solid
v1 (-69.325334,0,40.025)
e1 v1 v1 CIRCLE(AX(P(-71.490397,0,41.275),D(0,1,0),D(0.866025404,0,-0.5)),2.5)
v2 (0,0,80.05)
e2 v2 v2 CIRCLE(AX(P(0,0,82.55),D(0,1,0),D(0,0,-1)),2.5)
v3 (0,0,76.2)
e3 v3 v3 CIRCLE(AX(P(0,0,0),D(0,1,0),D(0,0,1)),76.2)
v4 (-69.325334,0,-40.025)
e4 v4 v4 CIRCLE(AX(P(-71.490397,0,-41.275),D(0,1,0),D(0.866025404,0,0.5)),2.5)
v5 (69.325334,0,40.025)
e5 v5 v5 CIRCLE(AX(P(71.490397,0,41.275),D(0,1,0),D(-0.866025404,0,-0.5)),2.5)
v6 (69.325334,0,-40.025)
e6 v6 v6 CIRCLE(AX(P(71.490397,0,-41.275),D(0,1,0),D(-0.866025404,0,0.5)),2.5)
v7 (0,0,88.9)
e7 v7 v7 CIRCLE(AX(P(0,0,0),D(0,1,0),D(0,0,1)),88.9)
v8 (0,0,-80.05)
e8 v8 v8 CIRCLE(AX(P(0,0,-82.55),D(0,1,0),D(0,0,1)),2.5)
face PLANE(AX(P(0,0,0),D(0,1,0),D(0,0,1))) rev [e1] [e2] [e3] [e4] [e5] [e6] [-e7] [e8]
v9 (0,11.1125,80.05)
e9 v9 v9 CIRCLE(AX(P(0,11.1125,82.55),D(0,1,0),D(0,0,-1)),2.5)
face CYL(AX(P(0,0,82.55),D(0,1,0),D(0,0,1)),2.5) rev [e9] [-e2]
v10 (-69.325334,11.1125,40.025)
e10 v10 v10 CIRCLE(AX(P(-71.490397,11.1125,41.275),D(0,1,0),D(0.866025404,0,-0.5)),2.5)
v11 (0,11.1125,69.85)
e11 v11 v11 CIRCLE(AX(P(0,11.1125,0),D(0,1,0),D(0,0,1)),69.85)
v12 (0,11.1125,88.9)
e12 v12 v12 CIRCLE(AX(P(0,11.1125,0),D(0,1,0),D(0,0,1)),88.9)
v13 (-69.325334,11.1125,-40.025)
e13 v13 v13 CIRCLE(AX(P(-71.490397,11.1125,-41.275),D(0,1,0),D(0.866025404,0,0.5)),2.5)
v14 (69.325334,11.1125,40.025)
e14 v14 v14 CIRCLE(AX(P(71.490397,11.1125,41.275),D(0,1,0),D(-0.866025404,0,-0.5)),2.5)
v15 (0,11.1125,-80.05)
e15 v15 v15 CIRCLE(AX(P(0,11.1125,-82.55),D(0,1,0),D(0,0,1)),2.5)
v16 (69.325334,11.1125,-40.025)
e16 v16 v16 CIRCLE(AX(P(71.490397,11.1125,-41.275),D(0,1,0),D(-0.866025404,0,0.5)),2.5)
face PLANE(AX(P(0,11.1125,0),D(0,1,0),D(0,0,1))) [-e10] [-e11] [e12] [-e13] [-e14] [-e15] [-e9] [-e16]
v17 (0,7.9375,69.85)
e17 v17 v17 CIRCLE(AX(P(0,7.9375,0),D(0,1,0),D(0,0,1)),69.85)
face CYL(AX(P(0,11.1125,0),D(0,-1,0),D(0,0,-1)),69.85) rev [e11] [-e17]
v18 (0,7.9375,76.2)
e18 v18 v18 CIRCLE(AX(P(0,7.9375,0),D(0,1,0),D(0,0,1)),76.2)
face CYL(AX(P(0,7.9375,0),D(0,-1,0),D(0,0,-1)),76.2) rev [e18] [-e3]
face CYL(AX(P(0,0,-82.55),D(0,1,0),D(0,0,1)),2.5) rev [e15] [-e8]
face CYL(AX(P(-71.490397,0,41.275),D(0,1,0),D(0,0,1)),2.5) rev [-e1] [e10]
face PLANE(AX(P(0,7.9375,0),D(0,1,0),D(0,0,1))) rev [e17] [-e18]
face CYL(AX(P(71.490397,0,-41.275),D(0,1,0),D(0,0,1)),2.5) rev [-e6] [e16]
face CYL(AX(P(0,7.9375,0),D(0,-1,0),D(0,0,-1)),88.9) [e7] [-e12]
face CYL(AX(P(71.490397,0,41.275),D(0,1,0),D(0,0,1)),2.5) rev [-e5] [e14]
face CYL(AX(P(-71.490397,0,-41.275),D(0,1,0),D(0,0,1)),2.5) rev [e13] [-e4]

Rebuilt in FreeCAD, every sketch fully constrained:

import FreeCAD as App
import Part
import Sketcher
Q = App.Units.Quantity

doc = App.newDocument("Part")
body = doc.addObject("PartDesign::Body", "Body")

# Sketch on XZ plane
sketch1 = doc.addObject("Sketcher::SketchObject", "Sketch")
body.addObject(sketch1)
sketch1.AttachmentSupport = (doc.XZ_Plane, [""])
sketch1.MapMode = "FlatFace"
sketch1.addGeometry(Part.Circle(App.Vector(0, 0, 0), App.Vector(0, 0, 1), 89), False)
sketch1.addGeometry(Part.Circle(App.Vector(0, 0, 0), App.Vector(0, 0, 1), 76), False)
sketch1.addConstraint(Sketcher.Constraint("Coincident", 0, 3, -1, 1))
sketch1.addConstraint(Sketcher.Constraint("Coincident", 1, 3, -1, 1))
sketch1.addConstraint(Sketcher.Constraint("Diameter", 0, Q("7 in")))
sketch1.addConstraint(Sketcher.Constraint("Diameter", 1, Q("6 in")))
pad1 = doc.addObject("PartDesign::Pad", "Pad")
body.addObject(pad1)
pad1.Profile = sketch1
pad1.Length = Q("0.3125 in")
pad1.Reversed = True

# Sketch on XZ plane
sketch2 = doc.addObject("Sketcher::SketchObject", "Sketch001")
body.addObject(sketch2)
sketch2.AttachmentSupport = (doc.XZ_Plane, [""])
sketch2.MapMode = "FlatFace"
sketch2.AttachmentOffset = App.Placement(App.Vector(0, 0, -0.3125 * 25.4), App.Rotation())
sketch2.addGeometry(Part.Circle(App.Vector(0, 0, 0), App.Vector(0, 0, 1), 89), False)
sketch2.addGeometry(Part.Circle(App.Vector(0, 0, 0), App.Vector(0, 0, 1), 70), False)
sketch2.addConstraint(Sketcher.Constraint("Coincident", 0, 3, -1, 1))
sketch2.addConstraint(Sketcher.Constraint("Coincident", 1, 3, -1, 1))
sketch2.addConstraint(Sketcher.Constraint("Diameter", 0, Q("7 in")))
sketch2.addConstraint(Sketcher.Constraint("Diameter", 1, Q("5.5 in")))
pad2 = doc.addObject("PartDesign::Pad", "Pad001")
body.addObject(pad2)
pad2.Profile = sketch2
pad2.Length = Q("0.125 in")
pad2.Reversed = True

# Sketch on XZ plane
sketch3 = doc.addObject("Sketcher::SketchObject", "Sketch002")
body.addObject(sketch3)
sketch3.AttachmentSupport = (doc.XZ_Plane, [""])
sketch3.MapMode = "FlatFace"
sketch3.AttachmentOffset = App.Placement(App.Vector(0, 0, -0.4375 * 25.4), App.Rotation())
sketch3.addGeometry(Part.Circle(App.Vector(0, -82.5, 0), App.Vector(0, 0, 1), 2.5), False)
sketch3.addConstraint(Sketcher.Constraint("PointOnObject", 0, 3, -2))
sketch3.addConstraint(Sketcher.Constraint("Diameter", 0, 5.0))
sketch3.addConstraint(Sketcher.Constraint("DistanceY", 0, 3, -1, 1, Q("3.25 in")))
pocket1 = doc.addObject("PartDesign::Pocket", "Pocket")
body.addObject(pocket1)
pocket1.Profile = sketch3
pocket1.Type = "ThroughAll"
pocket1.Reversed = True
doc.recompute()

polarpattern = doc.addObject("PartDesign::PolarPattern", "PolarPattern")
body.addObject(polarpattern)
polarpattern.Originals = [pocket1]
polarpattern.Axis = (doc.Y_Axis, [""])
polarpattern.Angle = 360
polarpattern.Occurrences = 6
body.Tip = polarpattern

doc.recompute()
